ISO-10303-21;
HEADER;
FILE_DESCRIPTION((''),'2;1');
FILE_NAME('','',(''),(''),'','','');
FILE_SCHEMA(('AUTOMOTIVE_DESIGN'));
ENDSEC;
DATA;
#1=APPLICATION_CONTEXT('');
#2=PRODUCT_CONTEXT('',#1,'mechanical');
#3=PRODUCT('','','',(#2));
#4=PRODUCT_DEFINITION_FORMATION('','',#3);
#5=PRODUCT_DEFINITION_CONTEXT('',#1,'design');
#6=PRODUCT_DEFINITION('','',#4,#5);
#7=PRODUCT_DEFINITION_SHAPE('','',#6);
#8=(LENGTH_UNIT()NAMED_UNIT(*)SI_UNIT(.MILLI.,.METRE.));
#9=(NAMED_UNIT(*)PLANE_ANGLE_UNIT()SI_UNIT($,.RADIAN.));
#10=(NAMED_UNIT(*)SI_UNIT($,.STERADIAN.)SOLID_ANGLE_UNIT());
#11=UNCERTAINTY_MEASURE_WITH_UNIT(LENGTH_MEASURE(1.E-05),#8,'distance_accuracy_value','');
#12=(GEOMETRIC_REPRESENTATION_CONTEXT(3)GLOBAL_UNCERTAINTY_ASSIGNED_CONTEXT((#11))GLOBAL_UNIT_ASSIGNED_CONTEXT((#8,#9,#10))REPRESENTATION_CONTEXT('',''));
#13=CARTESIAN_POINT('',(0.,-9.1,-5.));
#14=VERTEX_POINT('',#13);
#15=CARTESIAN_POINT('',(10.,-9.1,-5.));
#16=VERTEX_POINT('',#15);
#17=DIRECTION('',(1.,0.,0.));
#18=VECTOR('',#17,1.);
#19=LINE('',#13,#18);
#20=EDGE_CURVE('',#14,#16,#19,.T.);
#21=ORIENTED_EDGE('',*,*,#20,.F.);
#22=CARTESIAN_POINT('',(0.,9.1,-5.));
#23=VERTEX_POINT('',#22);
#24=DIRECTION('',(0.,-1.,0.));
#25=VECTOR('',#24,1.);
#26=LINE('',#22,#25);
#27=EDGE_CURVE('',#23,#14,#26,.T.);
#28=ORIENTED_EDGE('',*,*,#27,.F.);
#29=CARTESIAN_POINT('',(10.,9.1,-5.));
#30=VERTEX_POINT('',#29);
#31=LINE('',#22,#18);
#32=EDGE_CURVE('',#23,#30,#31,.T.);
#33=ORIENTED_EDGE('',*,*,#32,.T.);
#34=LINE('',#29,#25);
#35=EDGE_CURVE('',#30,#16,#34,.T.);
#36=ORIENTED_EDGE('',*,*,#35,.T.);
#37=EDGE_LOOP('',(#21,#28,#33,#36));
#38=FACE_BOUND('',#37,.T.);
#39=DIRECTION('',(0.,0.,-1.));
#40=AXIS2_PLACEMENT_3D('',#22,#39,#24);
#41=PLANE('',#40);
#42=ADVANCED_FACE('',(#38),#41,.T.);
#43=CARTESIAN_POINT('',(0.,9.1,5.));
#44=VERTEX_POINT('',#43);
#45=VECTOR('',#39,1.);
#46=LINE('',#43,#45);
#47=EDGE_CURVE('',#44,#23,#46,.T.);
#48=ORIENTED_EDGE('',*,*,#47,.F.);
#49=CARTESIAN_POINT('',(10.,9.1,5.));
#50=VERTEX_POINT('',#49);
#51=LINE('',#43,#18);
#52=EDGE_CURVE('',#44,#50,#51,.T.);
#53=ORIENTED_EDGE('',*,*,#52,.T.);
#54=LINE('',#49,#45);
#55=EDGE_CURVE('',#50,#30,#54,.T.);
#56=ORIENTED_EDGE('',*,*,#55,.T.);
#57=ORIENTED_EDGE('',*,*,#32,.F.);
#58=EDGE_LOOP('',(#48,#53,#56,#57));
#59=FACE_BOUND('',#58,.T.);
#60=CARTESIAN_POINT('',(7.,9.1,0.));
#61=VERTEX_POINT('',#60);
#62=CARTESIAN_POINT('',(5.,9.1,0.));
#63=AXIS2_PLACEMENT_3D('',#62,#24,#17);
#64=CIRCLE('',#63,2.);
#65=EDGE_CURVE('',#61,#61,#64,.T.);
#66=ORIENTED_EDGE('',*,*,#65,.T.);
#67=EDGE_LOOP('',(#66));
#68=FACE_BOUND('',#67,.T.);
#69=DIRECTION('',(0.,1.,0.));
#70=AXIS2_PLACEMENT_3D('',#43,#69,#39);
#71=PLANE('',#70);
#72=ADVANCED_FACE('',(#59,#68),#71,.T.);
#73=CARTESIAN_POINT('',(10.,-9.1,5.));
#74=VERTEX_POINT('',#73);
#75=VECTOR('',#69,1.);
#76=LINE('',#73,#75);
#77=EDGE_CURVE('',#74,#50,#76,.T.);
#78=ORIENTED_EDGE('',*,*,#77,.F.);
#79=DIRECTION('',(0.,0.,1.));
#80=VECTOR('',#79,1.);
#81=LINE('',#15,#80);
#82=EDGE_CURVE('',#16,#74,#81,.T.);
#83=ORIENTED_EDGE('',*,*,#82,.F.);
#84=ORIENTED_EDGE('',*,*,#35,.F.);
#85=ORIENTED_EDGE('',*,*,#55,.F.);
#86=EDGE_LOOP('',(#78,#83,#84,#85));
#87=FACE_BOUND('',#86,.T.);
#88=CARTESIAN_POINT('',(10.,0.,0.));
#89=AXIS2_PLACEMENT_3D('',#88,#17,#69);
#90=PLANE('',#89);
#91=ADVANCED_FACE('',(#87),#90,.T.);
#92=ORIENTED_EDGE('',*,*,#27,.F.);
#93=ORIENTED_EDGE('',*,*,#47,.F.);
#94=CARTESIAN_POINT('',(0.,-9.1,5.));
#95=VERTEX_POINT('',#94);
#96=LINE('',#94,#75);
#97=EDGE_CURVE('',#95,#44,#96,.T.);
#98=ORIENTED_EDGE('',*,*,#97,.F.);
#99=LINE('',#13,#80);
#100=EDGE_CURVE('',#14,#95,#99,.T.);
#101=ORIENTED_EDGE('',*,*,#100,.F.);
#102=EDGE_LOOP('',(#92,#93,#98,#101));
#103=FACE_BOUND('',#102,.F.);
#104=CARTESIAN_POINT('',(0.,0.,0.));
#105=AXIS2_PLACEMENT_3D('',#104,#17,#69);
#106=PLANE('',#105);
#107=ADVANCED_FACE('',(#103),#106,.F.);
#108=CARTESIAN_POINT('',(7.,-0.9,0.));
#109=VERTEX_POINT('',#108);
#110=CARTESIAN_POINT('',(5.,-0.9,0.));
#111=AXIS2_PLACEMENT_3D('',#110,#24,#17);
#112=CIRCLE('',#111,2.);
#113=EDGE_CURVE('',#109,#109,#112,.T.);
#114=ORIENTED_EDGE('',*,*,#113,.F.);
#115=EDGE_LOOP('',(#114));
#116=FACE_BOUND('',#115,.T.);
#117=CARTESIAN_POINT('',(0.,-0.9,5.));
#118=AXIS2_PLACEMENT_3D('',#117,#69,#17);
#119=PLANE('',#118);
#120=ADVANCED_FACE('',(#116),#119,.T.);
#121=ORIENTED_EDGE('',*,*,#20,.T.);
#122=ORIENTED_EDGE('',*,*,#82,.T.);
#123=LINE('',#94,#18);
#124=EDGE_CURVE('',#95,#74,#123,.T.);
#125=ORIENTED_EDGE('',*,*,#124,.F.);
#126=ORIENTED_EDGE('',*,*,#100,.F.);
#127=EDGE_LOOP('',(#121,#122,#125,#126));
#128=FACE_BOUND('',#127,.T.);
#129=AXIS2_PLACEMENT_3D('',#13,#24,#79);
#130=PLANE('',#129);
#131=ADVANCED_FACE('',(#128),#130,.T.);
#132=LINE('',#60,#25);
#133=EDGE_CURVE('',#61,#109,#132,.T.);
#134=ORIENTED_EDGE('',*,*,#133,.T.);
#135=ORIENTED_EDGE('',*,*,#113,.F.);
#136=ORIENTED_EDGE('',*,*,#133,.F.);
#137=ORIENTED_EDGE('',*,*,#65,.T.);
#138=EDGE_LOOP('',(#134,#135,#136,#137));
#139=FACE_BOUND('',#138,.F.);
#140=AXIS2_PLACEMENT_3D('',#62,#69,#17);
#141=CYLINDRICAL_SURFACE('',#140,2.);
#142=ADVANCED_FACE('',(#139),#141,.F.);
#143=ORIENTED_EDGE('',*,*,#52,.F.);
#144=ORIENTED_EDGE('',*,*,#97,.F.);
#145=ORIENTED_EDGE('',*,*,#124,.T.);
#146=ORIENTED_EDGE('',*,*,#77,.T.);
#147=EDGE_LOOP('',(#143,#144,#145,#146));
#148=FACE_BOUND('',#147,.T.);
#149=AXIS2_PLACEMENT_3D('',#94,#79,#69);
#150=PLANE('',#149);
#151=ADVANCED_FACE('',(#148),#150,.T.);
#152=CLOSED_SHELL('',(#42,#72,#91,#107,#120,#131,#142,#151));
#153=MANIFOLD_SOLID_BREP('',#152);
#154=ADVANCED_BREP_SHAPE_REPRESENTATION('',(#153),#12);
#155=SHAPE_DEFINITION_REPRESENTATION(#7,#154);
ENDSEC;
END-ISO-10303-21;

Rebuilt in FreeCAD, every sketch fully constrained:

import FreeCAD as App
import Part
import Sketcher
Q = App.Units.Quantity

doc = App.newDocument("Part")
body = doc.addObject("PartDesign::Body", "Body")

sketch1 = body.newObject("Sketcher::SketchObject", "Sketch")
sketch1.AttachmentSupport = (doc.getObject("YZ_Plane"), [""])
sketch1.MapMode = "FlatFace"
sketch1.addGeometry([
    Part.LineSegment(App.Vector(9, 5, 0), App.Vector(-9, 5, 0)),
    Part.LineSegment(App.Vector(-9, 5, 0), App.Vector(-9, -5, 0)),
    Part.LineSegment(App.Vector(-9, -5, 0), App.Vector(9, -5, 0)),
    Part.LineSegment(App.Vector(9, -5, 0), App.Vector(9, 5, 0)),
], False)
sketch1.addConstraint([
    Sketcher.Constraint("Coincident", 0, 2, 1, 1),
    Sketcher.Constraint("Coincident", 1, 2, 2, 1),
    Sketcher.Constraint("Coincident", 2, 2, 3, 1),
    Sketcher.Constraint("Coincident", 3, 2, 0, 1),
    Sketcher.Constraint("Horizontal", 0),
    Sketcher.Constraint("Vertical", 1),
    Sketcher.Constraint("Horizontal", 2),
    Sketcher.Constraint("Vertical", 3),
    Sketcher.Constraint("Symmetric", 0, 2, 2, 2, -1, 1),
    Sketcher.Constraint("DistanceY", 1, 2, 1, 1, Q("10 mm")),
    Sketcher.Constraint("DistanceX", 0, 2, 0, 1, Q("18.2 mm")),
])
pad1 = body.newObject("PartDesign::Pad", "Pad")
pad1.Profile = sketch1
pad1.Length = 10

sketch2 = body.newObject("Sketcher::SketchObject", "Sketch001")
sketch2.AttachmentSupport = (doc.getObject("XZ_Plane"), [""])
sketch2.MapMode = "FlatFace"
sketch2.AttachmentOffset = App.Placement(App.Vector(0, 0, -9.1), App.Rotation())
sketch2.addGeometry(Part.Circle(App.Vector(5, 0, 0), App.Vector(0, 0, 1), 2), False)
sketch2.addConstraint([
    Sketcher.Constraint("PointOnObject", 0, 3, -1),
    Sketcher.Constraint("Diameter", 0, Q("4 mm")),
    Sketcher.Constraint("DistanceX", -1, 1, 0, 3, Q("5 mm")),
])
pocket1 = body.newObject("PartDesign::Pocket", "Pocket")
pocket1.Profile = sketch2
pocket1.Length = 10
pocket1.Reversed = True

doc.recompute()
